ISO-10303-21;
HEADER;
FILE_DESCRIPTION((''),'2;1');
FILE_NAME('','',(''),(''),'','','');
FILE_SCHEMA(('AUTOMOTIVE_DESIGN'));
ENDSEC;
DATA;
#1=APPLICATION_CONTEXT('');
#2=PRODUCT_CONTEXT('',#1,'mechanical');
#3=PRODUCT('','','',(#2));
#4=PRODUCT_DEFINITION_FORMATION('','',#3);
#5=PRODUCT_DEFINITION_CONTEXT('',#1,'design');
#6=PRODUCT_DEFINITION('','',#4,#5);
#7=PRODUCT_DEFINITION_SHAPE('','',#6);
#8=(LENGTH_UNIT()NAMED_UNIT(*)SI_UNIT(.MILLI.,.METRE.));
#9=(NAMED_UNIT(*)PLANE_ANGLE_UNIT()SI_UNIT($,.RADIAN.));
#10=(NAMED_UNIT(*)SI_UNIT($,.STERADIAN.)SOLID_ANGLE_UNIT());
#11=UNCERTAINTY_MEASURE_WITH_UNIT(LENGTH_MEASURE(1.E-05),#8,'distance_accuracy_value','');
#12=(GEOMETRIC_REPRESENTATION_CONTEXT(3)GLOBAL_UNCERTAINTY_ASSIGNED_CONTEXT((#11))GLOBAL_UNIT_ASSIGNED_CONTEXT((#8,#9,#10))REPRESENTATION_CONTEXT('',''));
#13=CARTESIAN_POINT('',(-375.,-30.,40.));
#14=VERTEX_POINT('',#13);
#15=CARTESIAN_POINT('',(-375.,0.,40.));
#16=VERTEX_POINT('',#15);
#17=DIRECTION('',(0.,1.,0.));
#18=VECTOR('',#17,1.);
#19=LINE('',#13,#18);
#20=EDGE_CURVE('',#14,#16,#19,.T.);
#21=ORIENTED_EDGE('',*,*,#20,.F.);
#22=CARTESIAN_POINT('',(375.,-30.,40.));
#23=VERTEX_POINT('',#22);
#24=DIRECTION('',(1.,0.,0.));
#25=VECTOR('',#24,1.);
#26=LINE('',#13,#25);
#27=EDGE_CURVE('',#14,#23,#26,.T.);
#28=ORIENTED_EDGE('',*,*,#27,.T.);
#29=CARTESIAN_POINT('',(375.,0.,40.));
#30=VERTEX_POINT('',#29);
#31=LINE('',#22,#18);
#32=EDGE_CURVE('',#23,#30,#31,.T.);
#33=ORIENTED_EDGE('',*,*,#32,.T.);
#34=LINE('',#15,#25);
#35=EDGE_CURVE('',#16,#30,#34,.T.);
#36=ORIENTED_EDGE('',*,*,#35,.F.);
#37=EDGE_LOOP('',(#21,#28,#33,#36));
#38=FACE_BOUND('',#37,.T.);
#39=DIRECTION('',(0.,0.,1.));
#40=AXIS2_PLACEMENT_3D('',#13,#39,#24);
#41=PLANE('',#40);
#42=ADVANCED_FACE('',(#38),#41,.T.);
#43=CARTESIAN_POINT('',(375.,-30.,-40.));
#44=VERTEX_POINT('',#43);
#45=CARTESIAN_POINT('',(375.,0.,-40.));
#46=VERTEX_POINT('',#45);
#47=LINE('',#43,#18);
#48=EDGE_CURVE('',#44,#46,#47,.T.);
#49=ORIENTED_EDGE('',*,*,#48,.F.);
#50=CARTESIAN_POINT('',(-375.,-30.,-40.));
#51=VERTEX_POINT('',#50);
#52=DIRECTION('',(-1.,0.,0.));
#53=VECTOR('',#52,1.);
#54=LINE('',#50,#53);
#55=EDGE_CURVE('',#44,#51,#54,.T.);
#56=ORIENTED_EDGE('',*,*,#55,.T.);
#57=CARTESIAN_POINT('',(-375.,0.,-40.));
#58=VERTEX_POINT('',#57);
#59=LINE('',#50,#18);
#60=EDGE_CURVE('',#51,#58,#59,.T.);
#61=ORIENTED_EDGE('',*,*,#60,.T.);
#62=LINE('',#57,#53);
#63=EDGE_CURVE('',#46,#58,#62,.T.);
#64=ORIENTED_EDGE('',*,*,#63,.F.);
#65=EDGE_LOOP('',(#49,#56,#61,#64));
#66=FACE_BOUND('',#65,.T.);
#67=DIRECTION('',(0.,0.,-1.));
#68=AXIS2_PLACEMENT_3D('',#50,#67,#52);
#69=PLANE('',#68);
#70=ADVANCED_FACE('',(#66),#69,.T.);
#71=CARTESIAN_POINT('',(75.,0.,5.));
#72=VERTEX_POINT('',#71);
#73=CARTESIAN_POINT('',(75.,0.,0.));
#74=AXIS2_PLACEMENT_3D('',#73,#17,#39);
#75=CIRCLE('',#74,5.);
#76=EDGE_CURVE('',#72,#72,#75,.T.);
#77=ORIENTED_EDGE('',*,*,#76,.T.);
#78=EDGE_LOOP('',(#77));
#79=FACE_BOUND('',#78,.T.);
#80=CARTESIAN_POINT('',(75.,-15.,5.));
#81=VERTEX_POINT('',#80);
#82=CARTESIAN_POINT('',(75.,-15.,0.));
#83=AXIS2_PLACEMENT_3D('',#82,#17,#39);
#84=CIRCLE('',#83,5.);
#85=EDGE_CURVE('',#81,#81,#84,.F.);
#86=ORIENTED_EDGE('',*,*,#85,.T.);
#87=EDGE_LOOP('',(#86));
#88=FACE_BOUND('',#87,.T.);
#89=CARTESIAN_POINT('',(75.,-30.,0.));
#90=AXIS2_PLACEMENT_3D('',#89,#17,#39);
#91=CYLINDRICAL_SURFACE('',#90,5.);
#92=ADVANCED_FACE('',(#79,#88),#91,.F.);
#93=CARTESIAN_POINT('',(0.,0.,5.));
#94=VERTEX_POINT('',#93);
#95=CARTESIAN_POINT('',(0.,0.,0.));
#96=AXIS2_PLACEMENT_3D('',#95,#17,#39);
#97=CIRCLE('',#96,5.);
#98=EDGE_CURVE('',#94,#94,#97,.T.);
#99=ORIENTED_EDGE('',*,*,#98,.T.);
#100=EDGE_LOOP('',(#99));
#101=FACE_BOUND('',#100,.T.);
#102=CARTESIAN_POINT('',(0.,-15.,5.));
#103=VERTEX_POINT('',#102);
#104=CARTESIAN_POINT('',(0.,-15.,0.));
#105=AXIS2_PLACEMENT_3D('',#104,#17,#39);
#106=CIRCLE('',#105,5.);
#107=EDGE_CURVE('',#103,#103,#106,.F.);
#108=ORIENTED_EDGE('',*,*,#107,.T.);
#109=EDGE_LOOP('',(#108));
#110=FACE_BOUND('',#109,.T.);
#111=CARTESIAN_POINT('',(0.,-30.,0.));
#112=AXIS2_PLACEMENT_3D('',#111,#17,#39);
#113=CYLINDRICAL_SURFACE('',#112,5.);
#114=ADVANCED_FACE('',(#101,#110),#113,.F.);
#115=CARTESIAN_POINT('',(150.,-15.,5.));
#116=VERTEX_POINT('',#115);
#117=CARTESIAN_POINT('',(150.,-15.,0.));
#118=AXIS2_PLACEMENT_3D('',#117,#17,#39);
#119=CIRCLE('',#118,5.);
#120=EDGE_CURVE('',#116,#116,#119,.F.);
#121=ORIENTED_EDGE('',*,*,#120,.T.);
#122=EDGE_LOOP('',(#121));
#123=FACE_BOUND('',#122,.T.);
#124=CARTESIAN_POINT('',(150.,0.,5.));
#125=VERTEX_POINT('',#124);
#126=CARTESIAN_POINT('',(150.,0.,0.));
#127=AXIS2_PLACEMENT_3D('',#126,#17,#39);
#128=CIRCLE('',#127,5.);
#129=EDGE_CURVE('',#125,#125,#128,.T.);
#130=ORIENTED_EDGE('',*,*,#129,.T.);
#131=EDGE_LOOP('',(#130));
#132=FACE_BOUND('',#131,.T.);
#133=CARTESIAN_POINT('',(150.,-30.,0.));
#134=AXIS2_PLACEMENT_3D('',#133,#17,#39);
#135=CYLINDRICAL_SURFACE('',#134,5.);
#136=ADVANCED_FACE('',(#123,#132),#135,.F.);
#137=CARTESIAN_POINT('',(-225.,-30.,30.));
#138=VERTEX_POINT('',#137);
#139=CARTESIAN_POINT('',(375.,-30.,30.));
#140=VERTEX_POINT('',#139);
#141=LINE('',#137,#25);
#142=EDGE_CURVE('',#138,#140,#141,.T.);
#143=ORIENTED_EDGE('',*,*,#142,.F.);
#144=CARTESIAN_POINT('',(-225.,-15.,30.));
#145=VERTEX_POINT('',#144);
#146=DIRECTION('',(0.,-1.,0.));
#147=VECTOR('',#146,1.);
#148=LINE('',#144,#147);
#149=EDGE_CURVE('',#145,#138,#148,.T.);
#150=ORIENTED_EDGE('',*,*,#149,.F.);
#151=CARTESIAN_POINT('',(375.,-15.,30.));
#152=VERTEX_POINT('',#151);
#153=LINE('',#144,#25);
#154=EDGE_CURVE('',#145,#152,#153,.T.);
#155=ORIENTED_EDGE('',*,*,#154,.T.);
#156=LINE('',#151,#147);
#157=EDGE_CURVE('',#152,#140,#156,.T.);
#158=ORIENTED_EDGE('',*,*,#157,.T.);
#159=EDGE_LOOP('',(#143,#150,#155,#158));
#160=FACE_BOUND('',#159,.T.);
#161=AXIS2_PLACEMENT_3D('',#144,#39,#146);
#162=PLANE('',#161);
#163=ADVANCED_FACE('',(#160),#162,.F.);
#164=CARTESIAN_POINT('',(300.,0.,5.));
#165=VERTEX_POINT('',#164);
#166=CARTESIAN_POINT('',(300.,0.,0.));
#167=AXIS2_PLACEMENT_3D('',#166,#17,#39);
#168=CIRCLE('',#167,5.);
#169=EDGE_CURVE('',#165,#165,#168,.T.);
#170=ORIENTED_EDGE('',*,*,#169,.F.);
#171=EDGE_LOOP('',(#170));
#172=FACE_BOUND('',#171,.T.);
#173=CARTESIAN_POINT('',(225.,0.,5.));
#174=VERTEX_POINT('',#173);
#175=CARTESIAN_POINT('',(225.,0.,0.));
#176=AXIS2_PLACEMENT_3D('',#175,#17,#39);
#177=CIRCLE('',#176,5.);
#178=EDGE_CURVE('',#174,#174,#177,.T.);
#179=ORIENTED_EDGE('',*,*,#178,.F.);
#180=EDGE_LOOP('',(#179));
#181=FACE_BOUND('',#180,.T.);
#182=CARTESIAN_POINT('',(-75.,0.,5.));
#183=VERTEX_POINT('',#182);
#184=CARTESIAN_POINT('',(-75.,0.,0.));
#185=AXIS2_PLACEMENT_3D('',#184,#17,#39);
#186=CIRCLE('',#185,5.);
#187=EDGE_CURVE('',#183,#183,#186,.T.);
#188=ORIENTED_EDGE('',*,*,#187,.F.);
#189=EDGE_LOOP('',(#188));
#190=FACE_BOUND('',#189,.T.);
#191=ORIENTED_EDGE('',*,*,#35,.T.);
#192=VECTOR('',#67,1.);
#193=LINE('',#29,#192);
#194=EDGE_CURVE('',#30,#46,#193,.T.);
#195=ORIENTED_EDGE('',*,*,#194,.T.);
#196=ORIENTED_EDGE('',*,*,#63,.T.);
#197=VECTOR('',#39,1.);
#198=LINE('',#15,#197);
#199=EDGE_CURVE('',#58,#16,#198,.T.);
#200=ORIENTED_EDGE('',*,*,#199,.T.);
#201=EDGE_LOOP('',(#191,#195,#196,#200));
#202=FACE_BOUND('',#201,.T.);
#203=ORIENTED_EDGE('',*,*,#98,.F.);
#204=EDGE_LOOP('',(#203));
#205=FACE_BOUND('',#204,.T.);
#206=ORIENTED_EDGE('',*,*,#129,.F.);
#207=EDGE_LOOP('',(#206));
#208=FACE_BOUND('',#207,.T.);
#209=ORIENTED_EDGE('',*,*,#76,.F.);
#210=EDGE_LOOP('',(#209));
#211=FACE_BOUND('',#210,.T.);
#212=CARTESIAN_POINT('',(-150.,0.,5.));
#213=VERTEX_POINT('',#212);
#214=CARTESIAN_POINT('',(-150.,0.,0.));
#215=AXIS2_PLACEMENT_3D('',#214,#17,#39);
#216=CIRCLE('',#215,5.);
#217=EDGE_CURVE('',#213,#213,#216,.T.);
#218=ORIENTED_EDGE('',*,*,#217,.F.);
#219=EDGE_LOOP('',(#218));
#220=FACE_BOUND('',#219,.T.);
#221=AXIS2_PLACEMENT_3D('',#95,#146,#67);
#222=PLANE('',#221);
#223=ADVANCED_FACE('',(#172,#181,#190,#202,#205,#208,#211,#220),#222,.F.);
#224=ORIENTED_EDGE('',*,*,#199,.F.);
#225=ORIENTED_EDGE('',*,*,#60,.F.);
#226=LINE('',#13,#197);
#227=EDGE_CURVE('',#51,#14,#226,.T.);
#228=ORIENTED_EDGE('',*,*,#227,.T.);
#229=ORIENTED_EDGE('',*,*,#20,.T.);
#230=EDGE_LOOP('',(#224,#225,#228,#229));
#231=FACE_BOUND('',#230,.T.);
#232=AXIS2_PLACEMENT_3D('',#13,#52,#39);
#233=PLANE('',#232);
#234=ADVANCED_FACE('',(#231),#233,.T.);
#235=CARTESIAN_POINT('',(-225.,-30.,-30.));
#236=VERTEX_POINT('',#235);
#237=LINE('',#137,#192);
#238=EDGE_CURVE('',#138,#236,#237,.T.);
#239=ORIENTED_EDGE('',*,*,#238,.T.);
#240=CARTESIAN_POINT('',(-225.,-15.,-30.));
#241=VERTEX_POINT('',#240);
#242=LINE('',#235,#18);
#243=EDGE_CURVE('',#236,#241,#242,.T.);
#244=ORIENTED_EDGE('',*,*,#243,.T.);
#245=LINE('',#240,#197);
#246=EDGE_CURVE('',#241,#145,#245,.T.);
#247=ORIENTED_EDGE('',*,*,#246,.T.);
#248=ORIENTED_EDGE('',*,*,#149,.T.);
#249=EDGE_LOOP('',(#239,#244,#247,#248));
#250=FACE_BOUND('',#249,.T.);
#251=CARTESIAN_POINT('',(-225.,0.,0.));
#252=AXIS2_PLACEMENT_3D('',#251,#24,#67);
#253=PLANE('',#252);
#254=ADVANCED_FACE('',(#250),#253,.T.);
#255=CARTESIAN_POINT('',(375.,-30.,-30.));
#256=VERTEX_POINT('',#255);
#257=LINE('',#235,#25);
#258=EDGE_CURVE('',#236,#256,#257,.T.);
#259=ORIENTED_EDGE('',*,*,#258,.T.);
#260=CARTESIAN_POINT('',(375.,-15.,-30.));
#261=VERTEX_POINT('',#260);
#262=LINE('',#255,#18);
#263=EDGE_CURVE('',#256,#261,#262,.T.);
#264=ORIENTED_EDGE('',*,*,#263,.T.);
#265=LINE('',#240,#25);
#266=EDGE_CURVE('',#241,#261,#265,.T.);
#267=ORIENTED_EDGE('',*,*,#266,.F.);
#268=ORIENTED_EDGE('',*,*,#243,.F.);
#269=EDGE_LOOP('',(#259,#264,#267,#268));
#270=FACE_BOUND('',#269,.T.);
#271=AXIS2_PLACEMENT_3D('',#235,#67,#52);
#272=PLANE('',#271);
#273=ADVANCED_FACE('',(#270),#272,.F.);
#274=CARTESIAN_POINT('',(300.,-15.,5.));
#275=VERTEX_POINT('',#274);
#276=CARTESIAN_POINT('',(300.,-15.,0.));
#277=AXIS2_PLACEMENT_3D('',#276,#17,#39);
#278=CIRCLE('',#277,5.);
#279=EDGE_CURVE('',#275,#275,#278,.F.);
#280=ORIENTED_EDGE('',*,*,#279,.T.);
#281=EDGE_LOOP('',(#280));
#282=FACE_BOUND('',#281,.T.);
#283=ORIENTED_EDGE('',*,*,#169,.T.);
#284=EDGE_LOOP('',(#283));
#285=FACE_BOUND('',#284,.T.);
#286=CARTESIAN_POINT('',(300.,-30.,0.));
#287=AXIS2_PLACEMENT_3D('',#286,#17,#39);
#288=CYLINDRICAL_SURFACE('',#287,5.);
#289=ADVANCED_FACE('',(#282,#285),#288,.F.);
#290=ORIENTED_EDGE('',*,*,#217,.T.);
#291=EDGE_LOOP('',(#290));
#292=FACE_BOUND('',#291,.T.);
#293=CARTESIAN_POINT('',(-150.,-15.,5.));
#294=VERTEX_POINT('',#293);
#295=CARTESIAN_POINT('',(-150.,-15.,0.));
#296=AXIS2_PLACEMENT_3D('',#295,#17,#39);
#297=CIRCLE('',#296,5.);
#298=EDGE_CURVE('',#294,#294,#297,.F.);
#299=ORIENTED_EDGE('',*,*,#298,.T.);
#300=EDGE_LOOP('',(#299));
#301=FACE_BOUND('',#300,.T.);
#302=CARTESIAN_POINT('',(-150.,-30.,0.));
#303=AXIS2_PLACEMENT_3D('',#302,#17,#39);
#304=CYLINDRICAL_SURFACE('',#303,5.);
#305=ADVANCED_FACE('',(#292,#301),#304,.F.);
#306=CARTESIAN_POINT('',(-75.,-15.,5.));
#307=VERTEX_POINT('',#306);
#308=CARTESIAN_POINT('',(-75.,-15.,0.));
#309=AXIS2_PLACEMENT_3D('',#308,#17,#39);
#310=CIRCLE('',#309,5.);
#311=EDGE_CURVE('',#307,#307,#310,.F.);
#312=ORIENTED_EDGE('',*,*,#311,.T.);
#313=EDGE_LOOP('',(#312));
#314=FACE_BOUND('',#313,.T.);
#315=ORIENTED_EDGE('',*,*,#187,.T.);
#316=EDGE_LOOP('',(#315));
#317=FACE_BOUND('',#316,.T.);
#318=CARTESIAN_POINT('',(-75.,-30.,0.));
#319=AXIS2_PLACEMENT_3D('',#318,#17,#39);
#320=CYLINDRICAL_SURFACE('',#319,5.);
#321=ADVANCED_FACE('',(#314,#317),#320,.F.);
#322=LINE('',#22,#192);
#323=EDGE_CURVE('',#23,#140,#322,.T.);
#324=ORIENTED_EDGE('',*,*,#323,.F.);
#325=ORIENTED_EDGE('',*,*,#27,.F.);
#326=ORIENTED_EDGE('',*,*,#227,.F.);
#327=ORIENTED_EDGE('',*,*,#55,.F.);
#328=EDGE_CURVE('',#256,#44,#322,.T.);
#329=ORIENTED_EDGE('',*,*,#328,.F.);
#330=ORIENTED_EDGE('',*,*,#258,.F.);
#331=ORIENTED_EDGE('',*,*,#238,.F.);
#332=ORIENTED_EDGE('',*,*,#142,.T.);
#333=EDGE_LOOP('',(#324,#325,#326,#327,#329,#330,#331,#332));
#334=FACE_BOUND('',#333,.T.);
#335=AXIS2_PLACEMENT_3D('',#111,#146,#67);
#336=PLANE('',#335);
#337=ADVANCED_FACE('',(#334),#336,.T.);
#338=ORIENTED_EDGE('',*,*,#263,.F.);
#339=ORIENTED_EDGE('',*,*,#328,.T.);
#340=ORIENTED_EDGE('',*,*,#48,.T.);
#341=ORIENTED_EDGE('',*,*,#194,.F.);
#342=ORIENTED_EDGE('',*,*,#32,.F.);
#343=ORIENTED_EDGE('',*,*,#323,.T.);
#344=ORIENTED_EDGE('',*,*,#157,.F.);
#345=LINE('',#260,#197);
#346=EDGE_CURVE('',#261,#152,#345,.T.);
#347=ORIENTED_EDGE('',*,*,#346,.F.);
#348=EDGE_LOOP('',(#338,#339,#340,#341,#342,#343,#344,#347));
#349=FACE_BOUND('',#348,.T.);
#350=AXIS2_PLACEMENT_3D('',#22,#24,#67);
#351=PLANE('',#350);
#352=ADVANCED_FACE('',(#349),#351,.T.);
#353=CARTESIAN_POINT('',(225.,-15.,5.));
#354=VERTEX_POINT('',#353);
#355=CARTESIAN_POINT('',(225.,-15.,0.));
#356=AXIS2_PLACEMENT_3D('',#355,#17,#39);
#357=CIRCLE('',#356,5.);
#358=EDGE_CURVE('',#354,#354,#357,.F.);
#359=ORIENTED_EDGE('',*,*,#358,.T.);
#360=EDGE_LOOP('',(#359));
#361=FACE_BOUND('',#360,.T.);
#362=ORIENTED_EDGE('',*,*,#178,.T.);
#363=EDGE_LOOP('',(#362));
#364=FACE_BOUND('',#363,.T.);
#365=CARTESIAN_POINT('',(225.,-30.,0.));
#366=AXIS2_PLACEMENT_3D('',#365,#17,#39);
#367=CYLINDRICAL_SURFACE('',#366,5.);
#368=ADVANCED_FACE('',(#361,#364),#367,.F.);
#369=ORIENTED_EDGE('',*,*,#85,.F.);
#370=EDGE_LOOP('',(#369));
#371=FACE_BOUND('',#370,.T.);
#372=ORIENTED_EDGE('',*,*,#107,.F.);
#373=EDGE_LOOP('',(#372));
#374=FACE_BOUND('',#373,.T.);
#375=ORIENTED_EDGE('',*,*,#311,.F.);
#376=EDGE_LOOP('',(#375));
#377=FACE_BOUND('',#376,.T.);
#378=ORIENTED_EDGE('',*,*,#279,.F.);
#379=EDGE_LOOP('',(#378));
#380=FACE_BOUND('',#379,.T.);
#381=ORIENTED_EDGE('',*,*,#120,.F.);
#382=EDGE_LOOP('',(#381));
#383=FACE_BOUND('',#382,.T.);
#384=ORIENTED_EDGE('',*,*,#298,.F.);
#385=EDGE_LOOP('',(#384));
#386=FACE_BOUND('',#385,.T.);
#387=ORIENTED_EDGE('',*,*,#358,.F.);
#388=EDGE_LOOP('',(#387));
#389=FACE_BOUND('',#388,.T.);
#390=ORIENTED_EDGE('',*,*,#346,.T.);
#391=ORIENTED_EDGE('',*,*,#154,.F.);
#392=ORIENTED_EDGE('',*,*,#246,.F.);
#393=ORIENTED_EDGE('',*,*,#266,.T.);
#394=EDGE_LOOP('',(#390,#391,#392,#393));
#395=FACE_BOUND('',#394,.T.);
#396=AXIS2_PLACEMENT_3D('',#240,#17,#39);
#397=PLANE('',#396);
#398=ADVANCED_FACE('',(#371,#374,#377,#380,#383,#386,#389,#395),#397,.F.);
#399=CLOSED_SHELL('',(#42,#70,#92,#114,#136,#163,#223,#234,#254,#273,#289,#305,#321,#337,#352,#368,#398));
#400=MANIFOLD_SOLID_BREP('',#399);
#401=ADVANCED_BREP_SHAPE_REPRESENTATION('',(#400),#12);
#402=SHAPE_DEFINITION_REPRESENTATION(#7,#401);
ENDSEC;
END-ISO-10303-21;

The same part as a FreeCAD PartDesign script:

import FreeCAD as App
import Part
import Sketcher

V = App.Vector
Q = App.Units.Quantity


def add_polygon(sketch, points):
    """Adds a closed chain of lines whose ends are joined by coincident constraints."""
    first, n = sketch.GeometryCount, len(points)
    for a, b in zip(points, points[1:] + points[:1]):
        sketch.addGeometry(Part.LineSegment(App.Vector(*a, 0), App.Vector(*b, 0)), False)
    for i in range(n):
        sketch.addConstraint(Sketcher.Constraint("Coincident", first + i, 2, first + (i + 1) % n, 1))

doc = App.newDocument("Part")
body = doc.addObject("PartDesign::Body", "Body")

sketch1 = body.newObject("Sketcher::SketchObject", "Sketch")
sketch1.AttachmentSupport = (doc.getObject("XZ_Plane"), [""])
sketch1.MapMode = "FlatFace"
add_polygon(sketch1, [(-375, -40), (-375, 40), (375, 40), (375, -40)])
sketch1.addGeometry(Part.Circle(V(-150, 0, 0), V(0, 0, 1), 5), False)
sketch1.addGeometry(Part.Circle(V(-75, 0, 0), V(0, 0, 1), 5), False)
sketch1.addGeometry(Part.Circle(V(0, 0, 0), V(0, 0, 1), 5), False)
sketch1.addGeometry(Part.Circle(V(75, 0, 0), V(0, 0, 1), 5), False)
sketch1.addGeometry(Part.Circle(V(150, 0, 0), V(0, 0, 1), 5), False)
sketch1.addGeometry(Part.Circle(V(225, 0, 0), V(0, 0, 1), 5), False)
sketch1.addGeometry(Part.Circle(V(300, 0, 0), V(0, 0, 1), 5), False)
sketch1.addConstraint([
    Sketcher.Constraint("Vertical", 0),
    Sketcher.Constraint("Horizontal", 1),
    Sketcher.Constraint("Vertical", 2),
    Sketcher.Constraint("Horizontal", 3),
    Sketcher.Constraint("Coincident", 6, 3, -1, 1),
    Sketcher.Constraint("Equal", 4, 5),
    Sketcher.Constraint("Equal", 5, 6),
    Sketcher.Constraint("Equal", 6, 7),
    Sketcher.Constraint("Equal", 7, 8),
    Sketcher.Constraint("Equal", 8, 9),
    Sketcher.Constraint("Equal", 9, 10),
    Sketcher.Constraint("Symmetric", 5, 3, 7, 3, -1, 1),
    Sketcher.Constraint("Symmetric", 4, 3, 8, 3, -1, 1),
    Sketcher.Constraint("Symmetric", 0, 2, 2, 2, -1, 1),
    Sketcher.Constraint("PointOnObject", 4, 3, -1),
    Sketcher.Constraint("PointOnObject", 5, 3, -1),
    Sketcher.Constraint("PointOnObject", 9, 3, -1),
    Sketcher.Constraint("PointOnObject", 10, 3, -1),
    Sketcher.Constraint("Diameter", 4, Q("10 mm")),
    Sketcher.Constraint("DistanceX", 1, 1, 1, 2, Q("750 mm")),
    Sketcher.Constraint("DistanceY", 0, 1, 0, 2, Q("80 mm")),
    Sketcher.Constraint("DistanceX", 4, 3, -1, 1, Q("150 mm")),
    Sketcher.Constraint("DistanceX", 5, 3, -1, 1, Q("75 mm")),
    Sketcher.Constraint("DistanceX", -1, 1, 9, 3, Q("225 mm")),
    Sketcher.Constraint("DistanceX", -1, 1, 10, 3, Q("300 mm")),
])
pad1 = body.newObject("PartDesign::Pad", "Pad")
pad1.Profile = sketch1
pad1.Length = 30

sketch2 = body.newObject("Sketcher::SketchObject", "Sketch001")
sketch2.AttachmentSupport = (doc.getObject("YZ_Plane"), [""])
sketch2.MapMode = "FlatFace"
sketch2.AttachmentOffset = App.Placement(V(0, 0, 375), App.Rotation())
add_polygon(sketch2, [(-15, 30), (-30, 30), (-30, -30), (-15, -30)])
sketch2.addConstraint([
    Sketcher.Constraint("Horizontal", 0),
    Sketcher.Constraint("Vertical", 1),
    Sketcher.Constraint("Horizontal", 2),
    Sketcher.Constraint("Vertical", 3),
    Sketcher.Constraint("DistanceX", 0, 2, 0, 1, Q("15 mm")),
    Sketcher.Constraint("DistanceY", 1, 2, 1, 1, Q("60 mm")),
    Sketcher.Constraint("DistanceX", 0, 2, -1, 1, Q("30 mm")),
    Sketcher.Constraint("DistanceY", -1, 1, 0, 2, Q("30 mm")),
])
pocket1 = body.newObject("PartDesign::Pocket", "Pocket")
pocket1.Profile = sketch2
pocket1.Length = 600

doc.recompute()
